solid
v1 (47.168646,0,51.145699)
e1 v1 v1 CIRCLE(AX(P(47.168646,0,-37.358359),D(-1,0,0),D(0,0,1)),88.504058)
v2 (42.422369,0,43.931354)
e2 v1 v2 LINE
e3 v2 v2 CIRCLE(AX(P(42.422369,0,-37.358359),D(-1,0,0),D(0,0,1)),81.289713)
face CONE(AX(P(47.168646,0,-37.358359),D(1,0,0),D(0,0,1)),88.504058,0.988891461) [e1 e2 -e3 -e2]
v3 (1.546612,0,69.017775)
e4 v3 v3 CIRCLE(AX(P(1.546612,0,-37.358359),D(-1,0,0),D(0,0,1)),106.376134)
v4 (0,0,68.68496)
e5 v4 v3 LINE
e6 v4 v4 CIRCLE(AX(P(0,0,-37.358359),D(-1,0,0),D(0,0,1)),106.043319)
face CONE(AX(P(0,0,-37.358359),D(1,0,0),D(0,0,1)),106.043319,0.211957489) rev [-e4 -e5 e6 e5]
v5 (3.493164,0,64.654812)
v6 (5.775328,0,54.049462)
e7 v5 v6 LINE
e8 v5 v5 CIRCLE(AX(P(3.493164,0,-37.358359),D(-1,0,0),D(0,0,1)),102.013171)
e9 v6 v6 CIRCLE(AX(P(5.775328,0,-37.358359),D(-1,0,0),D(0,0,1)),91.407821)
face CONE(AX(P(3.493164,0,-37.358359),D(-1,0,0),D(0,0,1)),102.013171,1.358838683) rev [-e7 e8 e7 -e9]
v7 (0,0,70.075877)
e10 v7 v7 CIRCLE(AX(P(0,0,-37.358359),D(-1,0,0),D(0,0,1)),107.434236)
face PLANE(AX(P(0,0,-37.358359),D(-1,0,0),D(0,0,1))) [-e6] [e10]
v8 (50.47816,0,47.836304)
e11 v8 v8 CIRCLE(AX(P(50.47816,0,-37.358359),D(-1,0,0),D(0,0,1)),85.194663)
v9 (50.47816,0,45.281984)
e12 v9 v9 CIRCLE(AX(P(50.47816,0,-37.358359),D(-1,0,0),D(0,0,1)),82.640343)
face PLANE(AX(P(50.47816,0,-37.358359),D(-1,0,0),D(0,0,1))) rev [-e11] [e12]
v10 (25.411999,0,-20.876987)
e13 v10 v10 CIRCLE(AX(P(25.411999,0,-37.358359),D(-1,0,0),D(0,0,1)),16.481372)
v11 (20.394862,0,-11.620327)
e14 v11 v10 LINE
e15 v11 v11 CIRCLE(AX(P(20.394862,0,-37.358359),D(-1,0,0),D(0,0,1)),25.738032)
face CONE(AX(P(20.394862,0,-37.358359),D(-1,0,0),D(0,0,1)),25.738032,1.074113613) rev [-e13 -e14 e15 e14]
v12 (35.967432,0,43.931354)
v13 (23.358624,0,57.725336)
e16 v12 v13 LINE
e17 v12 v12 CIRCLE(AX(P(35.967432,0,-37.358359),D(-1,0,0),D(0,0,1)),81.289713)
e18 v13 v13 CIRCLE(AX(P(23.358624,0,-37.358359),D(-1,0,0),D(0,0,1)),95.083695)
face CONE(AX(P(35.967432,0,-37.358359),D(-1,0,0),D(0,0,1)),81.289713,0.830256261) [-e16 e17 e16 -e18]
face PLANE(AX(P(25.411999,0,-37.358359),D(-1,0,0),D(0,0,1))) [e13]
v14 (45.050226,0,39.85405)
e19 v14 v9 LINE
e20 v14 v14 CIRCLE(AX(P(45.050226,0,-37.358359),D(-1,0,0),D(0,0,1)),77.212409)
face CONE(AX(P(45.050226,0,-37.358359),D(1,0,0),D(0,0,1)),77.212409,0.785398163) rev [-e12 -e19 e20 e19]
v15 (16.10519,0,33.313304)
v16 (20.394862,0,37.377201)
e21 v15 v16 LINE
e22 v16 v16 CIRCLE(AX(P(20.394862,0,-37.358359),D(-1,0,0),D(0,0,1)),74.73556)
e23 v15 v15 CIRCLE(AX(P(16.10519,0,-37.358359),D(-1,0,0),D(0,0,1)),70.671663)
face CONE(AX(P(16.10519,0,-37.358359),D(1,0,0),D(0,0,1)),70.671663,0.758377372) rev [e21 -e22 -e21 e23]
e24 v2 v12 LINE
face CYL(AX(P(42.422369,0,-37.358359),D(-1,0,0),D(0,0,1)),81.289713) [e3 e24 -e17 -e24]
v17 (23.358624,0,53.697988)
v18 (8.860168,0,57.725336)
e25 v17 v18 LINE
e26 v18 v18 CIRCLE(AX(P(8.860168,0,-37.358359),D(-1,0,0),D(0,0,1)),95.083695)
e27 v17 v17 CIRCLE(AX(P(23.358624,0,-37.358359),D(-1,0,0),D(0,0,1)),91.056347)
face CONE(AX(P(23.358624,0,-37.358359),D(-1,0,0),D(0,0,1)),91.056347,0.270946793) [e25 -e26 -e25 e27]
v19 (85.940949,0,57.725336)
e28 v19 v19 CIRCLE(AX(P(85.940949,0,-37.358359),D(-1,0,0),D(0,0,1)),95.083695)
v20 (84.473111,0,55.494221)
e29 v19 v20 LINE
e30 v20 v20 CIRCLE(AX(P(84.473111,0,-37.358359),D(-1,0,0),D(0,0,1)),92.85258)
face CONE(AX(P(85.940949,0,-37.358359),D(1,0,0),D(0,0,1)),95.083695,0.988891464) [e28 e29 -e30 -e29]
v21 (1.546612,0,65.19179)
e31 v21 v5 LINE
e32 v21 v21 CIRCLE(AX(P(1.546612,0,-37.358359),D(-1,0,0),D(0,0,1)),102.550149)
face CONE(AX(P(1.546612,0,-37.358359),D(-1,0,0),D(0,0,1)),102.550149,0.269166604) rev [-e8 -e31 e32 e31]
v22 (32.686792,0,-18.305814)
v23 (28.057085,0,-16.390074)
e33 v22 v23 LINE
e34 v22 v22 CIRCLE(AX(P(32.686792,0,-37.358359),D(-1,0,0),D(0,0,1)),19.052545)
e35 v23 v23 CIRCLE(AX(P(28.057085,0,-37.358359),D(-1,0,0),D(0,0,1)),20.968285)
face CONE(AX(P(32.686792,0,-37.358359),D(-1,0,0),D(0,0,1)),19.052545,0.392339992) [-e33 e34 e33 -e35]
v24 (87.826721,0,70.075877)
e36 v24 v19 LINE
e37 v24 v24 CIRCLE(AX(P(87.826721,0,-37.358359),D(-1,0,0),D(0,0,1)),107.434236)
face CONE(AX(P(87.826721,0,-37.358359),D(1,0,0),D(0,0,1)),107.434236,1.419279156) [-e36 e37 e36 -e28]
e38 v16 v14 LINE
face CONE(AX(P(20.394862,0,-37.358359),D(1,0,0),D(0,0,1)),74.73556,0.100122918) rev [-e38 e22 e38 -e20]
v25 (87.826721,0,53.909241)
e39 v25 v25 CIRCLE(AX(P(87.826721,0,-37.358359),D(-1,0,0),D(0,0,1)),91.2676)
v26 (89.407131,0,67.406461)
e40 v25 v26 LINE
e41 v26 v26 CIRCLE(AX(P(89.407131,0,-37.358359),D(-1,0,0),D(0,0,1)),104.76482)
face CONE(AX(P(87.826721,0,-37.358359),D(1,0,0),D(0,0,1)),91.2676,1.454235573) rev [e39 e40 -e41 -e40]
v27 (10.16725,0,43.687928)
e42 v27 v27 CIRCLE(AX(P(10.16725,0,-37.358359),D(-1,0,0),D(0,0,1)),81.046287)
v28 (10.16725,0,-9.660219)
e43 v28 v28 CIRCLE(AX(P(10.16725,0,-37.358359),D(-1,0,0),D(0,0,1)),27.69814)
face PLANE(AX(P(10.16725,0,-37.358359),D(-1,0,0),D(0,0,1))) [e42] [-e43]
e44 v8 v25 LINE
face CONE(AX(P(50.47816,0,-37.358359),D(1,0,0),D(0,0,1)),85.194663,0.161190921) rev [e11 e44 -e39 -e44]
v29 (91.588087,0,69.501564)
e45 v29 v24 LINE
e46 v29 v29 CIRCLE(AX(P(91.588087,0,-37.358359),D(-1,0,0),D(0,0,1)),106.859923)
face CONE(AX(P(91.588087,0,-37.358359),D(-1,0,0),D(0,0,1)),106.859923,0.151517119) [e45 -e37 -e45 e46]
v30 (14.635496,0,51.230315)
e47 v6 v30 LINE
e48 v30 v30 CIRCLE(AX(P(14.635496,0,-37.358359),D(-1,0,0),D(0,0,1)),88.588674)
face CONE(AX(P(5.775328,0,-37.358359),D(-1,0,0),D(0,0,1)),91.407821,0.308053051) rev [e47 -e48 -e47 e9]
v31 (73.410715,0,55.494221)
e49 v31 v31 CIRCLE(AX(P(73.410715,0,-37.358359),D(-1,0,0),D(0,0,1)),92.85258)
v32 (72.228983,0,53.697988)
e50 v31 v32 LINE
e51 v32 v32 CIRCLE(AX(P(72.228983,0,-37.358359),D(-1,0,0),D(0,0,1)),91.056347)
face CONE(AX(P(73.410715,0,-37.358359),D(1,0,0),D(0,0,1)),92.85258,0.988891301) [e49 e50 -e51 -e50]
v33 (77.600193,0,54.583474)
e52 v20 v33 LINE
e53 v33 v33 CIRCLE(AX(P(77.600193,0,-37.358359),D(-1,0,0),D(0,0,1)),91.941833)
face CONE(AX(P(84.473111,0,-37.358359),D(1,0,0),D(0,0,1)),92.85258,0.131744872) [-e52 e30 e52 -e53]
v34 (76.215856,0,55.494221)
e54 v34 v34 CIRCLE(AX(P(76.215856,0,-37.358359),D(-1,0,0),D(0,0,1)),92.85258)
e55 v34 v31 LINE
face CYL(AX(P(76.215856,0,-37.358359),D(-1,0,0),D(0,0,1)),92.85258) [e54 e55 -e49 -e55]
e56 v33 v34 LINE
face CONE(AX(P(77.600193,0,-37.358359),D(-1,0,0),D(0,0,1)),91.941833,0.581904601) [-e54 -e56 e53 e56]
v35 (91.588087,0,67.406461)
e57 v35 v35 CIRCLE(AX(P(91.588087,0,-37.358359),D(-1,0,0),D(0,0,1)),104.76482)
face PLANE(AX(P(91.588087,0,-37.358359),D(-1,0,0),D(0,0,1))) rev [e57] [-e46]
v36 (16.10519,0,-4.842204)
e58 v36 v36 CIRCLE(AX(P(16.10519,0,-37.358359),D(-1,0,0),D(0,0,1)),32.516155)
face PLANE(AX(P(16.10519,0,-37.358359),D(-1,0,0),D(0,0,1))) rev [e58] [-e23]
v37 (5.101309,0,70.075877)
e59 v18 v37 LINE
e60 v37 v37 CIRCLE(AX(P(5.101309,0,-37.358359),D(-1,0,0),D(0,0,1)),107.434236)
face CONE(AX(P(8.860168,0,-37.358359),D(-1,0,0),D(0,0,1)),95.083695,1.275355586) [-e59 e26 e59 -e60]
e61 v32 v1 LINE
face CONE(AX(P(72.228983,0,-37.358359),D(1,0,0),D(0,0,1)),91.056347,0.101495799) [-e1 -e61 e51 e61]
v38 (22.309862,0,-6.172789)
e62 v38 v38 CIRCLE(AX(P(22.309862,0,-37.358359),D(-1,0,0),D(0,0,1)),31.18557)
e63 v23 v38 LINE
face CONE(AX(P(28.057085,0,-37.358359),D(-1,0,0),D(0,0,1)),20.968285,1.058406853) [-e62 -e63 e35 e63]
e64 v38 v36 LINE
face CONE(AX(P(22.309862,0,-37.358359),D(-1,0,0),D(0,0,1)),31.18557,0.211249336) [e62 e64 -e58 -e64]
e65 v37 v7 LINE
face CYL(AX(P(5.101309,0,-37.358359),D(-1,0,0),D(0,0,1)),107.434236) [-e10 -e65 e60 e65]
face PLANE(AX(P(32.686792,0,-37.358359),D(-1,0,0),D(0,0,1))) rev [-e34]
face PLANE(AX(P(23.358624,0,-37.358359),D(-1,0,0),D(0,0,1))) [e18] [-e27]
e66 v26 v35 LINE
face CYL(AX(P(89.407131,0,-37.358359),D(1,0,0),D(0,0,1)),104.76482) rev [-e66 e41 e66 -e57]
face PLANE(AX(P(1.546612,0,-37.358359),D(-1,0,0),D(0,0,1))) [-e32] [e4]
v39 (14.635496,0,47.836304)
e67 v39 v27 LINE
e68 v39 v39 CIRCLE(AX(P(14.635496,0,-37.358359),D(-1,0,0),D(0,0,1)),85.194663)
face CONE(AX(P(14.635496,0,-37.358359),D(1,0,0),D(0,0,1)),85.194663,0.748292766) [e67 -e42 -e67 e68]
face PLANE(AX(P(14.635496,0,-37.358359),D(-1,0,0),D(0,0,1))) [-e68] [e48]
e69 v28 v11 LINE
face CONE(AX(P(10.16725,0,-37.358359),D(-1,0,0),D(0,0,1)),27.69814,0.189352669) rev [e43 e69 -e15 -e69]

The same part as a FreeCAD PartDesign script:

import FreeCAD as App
import Part
import Sketcher

V = App.Vector
Q = App.Units.Quantity

doc = App.newDocument("Part")
body = doc.addObject("PartDesign::Body", "Body")

sketch1 = body.newObject("Sketcher::SketchObject", "Sketch")
sketch1.AttachmentSupport = (doc.getObject("XZ_Plane"), [""])
sketch1.MapMode = "FlatFace"
sketch1.addGeometry([
    Part.LineSegment(V(5.101309, 70.075877, 0), V(0, 70.075877, 0)),
    Part.LineSegment(V(0, 70.075877, 0), V(0, 68.68496, 0)),
    Part.LineSegment(V(0, 68.68496, 0), V(1.546612, 69.017775, 0)),
    Part.LineSegment(V(1.546612, 69.017775, 0), V(1.546612, 65.19179, 0)),
    Part.LineSegment(V(1.546612, 65.19179, 0), V(3.493164, 64.654812, 0)),
    Part.LineSegment(V(3.493164, 64.654812, 0), V(5.775328, 54.049462, 0)),
    Part.LineSegment(V(5.775328, 54.049462, 0), V(14.635496, 51.230315, 0)),
    Part.LineSegment(V(14.635496, 51.230315, 0), V(14.635496, 47.836304, 0)),
    Part.LineSegment(V(14.635496, 47.836304, 0), V(10.16725, 43.687928, 0)),
    Part.LineSegment(V(10.16725, 43.687928, 0), V(10.16725, -9.660219, 0)),
    Part.LineSegment(V(10.16725, -9.660219, 0), V(20.394862, -11.620327, 0)),
    Part.LineSegment(V(20.394862, -11.620327, 0), V(25.411999, -20.876987, 0)),
    Part.LineSegment(V(25.411999, -20.876987, 0), V(25.411999, -37.358359, 0)),
    Part.LineSegment(V(25.411999, -37.358359, 0), V(32.686792, -37.358359, 0)),
    Part.LineSegment(V(32.686792, -37.358359, 0), V(32.686792, -18.305814, 0)),
    Part.LineSegment(V(32.686792, -18.305814, 0), V(28.057085, -16.390074, 0)),
    Part.LineSegment(V(28.057085, -16.390074, 0), V(22.309862, -6.172789, 0)),
    Part.LineSegment(V(22.309862, -6.172789, 0), V(16.10519, -4.842204, 0)),
    Part.LineSegment(V(16.10519, -4.842204, 0), V(16.10519, 33.313304, 0)),
    Part.LineSegment(V(16.10519, 33.313304, 0), V(20.394862, 37.377201, 0)),
    Part.LineSegment(V(20.394862, 37.377201, 0), V(45.050226, 39.85405, 0)),
    Part.LineSegment(V(45.050226, 39.85405, 0), V(50.47816, 45.281984, 0)),
    Part.LineSegment(V(50.47816, 45.281984, 0), V(50.47816, 47.836304, 0)),
    Part.LineSegment(V(50.47816, 47.836304, 0), V(87.826721, 53.909241, 0)),
    Part.LineSegment(V(87.826721, 53.909241, 0), V(89.407131, 67.406461, 0)),
    Part.LineSegment(V(89.407131, 67.406461, 0), V(91.588087, 67.406461, 0)),
    Part.LineSegment(V(91.588087, 67.406461, 0), V(91.588087, 69.501564, 0)),
    Part.LineSegment(V(91.588087, 69.501564, 0), V(87.826721, 70.075877, 0)),
    Part.LineSegment(V(87.826721, 70.075877, 0), V(85.940949, 57.725336, 0)),
    Part.LineSegment(V(85.940949, 57.725336, 0), V(84.473111, 55.494221, 0)),
    Part.LineSegment(V(84.473111, 55.494221, 0), V(77.600193, 54.583474, 0)),
    Part.LineSegment(V(77.600193, 54.583474, 0), V(76.215856, 55.494221, 0)),
    Part.LineSegment(V(76.215856, 55.494221, 0), V(73.410715, 55.494221, 0)),
    Part.LineSegment(V(73.410715, 55.494221, 0), V(72.228983, 53.697988, 0)),
    Part.LineSegment(V(72.228983, 53.697988, 0), V(47.168646, 51.145699, 0)),
    Part.LineSegment(V(47.168646, 51.145699, 0), V(42.422369, 43.931354, 0)),
    Part.LineSegment(V(42.422369, 43.931354, 0), V(35.967432, 43.931354, 0)),
    Part.LineSegment(V(35.967432, 43.931354, 0), V(23.358624, 57.725336, 0)),
    Part.LineSegment(V(23.358624, 57.725336, 0), V(23.358624, 53.697988, 0)),
    Part.LineSegment(V(23.358624, 53.697988, 0), V(8.860168, 57.725336, 0)),
    Part.LineSegment(V(8.860168, 57.725336, 0), V(5.101309, 70.075877, 0)),
], False)
sketch1.addGeometry(Part.LineSegment(V(91.588087, -37.358359, 0), V(0, -37.358359, 0)), True)
sketch1.addConstraint([
    Sketcher.Constraint("Coincident", 0, 2, 1, 1),
    Sketcher.Constraint("Coincident", 1, 2, 2, 1),
    Sketcher.Constraint("Coincident", 2, 2, 3, 1),
    Sketcher.Constraint("Coincident", 3, 2, 4, 1),
    Sketcher.Constraint("Coincident", 4, 2, 5, 1),
    Sketcher.Constraint("Coincident", 5, 2, 6, 1),
    Sketcher.Constraint("Coincident", 6, 2, 7, 1),
    Sketcher.Constraint("Coincident", 7, 2, 8, 1),
    Sketcher.Constraint("Coincident", 8, 2, 9, 1),
    Sketcher.Constraint("Coincident", 9, 2, 10, 1),
    Sketcher.Constraint("Coincident", 10, 2, 11, 1),
    Sketcher.Constraint("Coincident", 11, 2, 12, 1),
    Sketcher.Constraint("Coincident", 12, 2, 13, 1),
    Sketcher.Constraint("Coincident", 13, 2, 14, 1),
    Sketcher.Constraint("Coincident", 14, 2, 15, 1),
    Sketcher.Constraint("Coincident", 15, 2, 16, 1),
    Sketcher.Constraint("Coincident", 16, 2, 17, 1),
    Sketcher.Constraint("Coincident", 17, 2, 18, 1),
    Sketcher.Constraint("Coincident", 18, 2, 19, 1),
    Sketcher.Constraint("Coincident", 19, 2, 20, 1),
    Sketcher.Constraint("Coincident", 20, 2, 21, 1),
    Sketcher.Constraint("Coincident", 21, 2, 22, 1),
    Sketcher.Constraint("Coincident", 22, 2, 23, 1),
    Sketcher.Constraint("Coincident", 23, 2, 24, 1),
    Sketcher.Constraint("Coincident", 24, 2, 25, 1),
    Sketcher.Constraint("Coincident", 25, 2, 26, 1),
    Sketcher.Constraint("Coincident", 26, 2, 27, 1),
    Sketcher.Constraint("Coincident", 27, 2, 28, 1),
    Sketcher.Constraint("Coincident", 28, 2, 29, 1),
    Sketcher.Constraint("Coincident", 29, 2, 30, 1),
    Sketcher.Constraint("Coincident", 30, 2, 31, 1),
    Sketcher.Constraint("Coincident", 31, 2, 32, 1),
    Sketcher.Constraint("Coincident", 32, 2, 33, 1),
    Sketcher.Constraint("Coincident", 33, 2, 34, 1),
    Sketcher.Constraint("Coincident", 34, 2, 35, 1),
    Sketcher.Constraint("Coincident", 35, 2, 36, 1),
    Sketcher.Constraint("Coincident", 36, 2, 37, 1),
    Sketcher.Constraint("Coincident", 37, 2, 38, 1),
    Sketcher.Constraint("Coincident", 38, 2, 39, 1),
    Sketcher.Constraint("Coincident", 39, 2, 40, 1),
    Sketcher.Constraint("Coincident", 40, 2, 0, 1),
    Sketcher.Constraint("Horizontal", 0),
    Sketcher.Constraint("Vertical", 1),
    Sketcher.Constraint("Vertical", 3),
    Sketcher.Constraint("Vertical", 7),
    Sketcher.Constraint("Vertical", 9),
    Sketcher.Constraint("Vertical", 12),
    Sketcher.Constraint("Horizontal", 13),
    Sketcher.Constraint("Vertical", 14),
    Sketcher.Constraint("Vertical", 18),
    Sketcher.Constraint("Vertical", 22),
    Sketcher.Constraint("Horizontal", 25),
    Sketcher.Constraint("Vertical", 26),
    Sketcher.Constraint("Horizontal", 32),
    Sketcher.Constraint("Horizontal", 36),
    Sketcher.Constraint("Vertical", 38),
    Sketcher.Constraint("Horizontal", 41),
    Sketcher.Constraint("PointOnObject", 0, 2, -2),
    Sketcher.Constraint("PointOnObject", 41, 2, -2),
    Sketcher.Constraint("Distance", 30, Q("6.932998 mm")),
    Sketcher.Constraint("DistanceX", -1, 1, 11, 2, Q("25.411999 mm")),
    Sketcher.Constraint("DistanceX", 10, 2, 16, 2, Q("1.915 mm")),
    Sketcher.Constraint("DistanceY", 18, 2, 7, 2, Q("14.523 mm")),
    Sketcher.Constraint("DistanceX", 0, 2, 0, 1, Q("5.101309 mm")),
    Sketcher.Constraint("DistanceX", 32, 2, 32, 1, Q("2.805141 mm")),
    Sketcher.Constraint("DistanceY", 7, 2, 7, 1, Q("3.394011 mm")),
    Sketcher.Constraint("DistanceY", 18, 1, 18, 2, Q("38.155508 mm")),
    Sketcher.Constraint("DistanceY", 22, 1, 22, 2, Q("2.55432 mm")),
    Sketcher.Constraint("DistanceY", -1, 1, 19, 2, Q("37.377201 mm")),
    Sketcher.Constraint("DistanceY", -1, 1, 34, 2, Q("51.145699 mm")),
    Sketcher.Constraint("DistanceY", 5, 2, 1, 2, Q("14.635498 mm")),
    Sketcher.Constraint("DistanceX", 19, 2, 21, 2, Q("30.083298 mm")),
    Sketcher.Constraint("Distance", 4, Q("2.01926 mm")),
    Sketcher.Constraint("Distance", 5, Q("10.848121 mm")),
    Sketcher.Constraint("Distance", 6, Q("9.297858 mm")),
    Sketcher.Constraint("Distance", 8, Q("6.097069 mm")),
    Sketcher.Constraint("Distance", 17, Q("6.34574 mm")),
    Sketcher.Constraint("Distance", 24, Q("13.589431 mm")),
    Sketcher.Constraint("Distance", 27, Q("3.804959 mm")),
    Sketcher.Constraint("Distance", 28, Q("12.493678 mm")),
    Sketcher.Constraint("Distance", 29, Q("2.67066 mm")),
    Sketcher.Constraint("Distance", 31, Q("1.65706 mm")),
    Sketcher.Constraint("Distance", 34, Q("25.189972 mm")),
    Sketcher.Constraint("Distance", 35, Q("8.635619 mm")),
    Sketcher.Constraint("Distance", 37, Q("18.688392 mm")),
    Sketcher.Constraint("DistanceX", 13, 1, 13, 2, Q("7.274793 mm")),
    Sketcher.Constraint("DistanceX", 25, 1, 25, 2, Q("2.180956 mm")),
    Sketcher.Constraint("DistanceX", 36, 2, 36, 1, Q("6.454937 mm")),
    Sketcher.Constraint("DistanceX", 41, 2, 41, 1, Q("91.588087 mm")),
    Sketcher.Constraint("DistanceY", 1, 2, 1, 1, Q("1.390917 mm")),
    Sketcher.Constraint("DistanceY", 3, 2, 3, 1, Q("3.825985 mm")),
    Sketcher.Constraint("DistanceY", 9, 2, 9, 1, Q("53.348147 mm")),
    Sketcher.Constraint("DistanceY", 12, 2, 12, 1, Q("16.481372 mm")),
    Sketcher.Constraint("DistanceY", 14, 1, 14, 2, Q("19.052545 mm")),
    Sketcher.Constraint("DistanceY", 26, 1, 26, 2, Q("2.095103 mm")),
    Sketcher.Constraint("DistanceY", 38, 2, 38, 1, Q("4.027348 mm")),
    Sketcher.Constraint("DistanceY", -1, 1, 1, 2, Q("68.68496 mm")),
    Sketcher.Constraint("DistanceY", -1, 1, 3, 2, Q("65.19179 mm")),
    Sketcher.Constraint("DistanceX", -1, 1, 8, 2, Q("10.16725 mm")),
    Sketcher.Constraint("DistanceY", 9, 2, -1, 1, Q("9.660219 mm")),
    Sketcher.Constraint("DistanceX", -1, 1, 10, 2, Q("20.394862 mm")),
    Sketcher.Constraint("DistanceY", 12, 2, -1, 1, Q("37.358359 mm")),
    Sketcher.Constraint("DistanceY", 16, 2, -1, 1, Q("6.172789 mm")),
    Sketcher.Constraint("DistanceX", -1, 1, 17, 2, Q("16.10519 mm")),
    Sketcher.Constraint("DistanceX", -1, 1, 19, 2, Q("20.394862 mm")),
    Sketcher.Constraint("DistanceY", -1, 1, 20, 2, Q("39.85405 mm")),
    Sketcher.Constraint("DistanceX", -1, 1, 23, 2, Q("87.826721 mm")),
    Sketcher.Constraint("DistanceY", -1, 1, 23, 2, Q("53.909241 mm")),
    Sketcher.Constraint("DistanceX", -1, 1, 24, 2, Q("89.407131 mm")),
    Sketcher.Constraint("DistanceX", -1, 1, 27, 2, Q("87.826721 mm")),
    Sketcher.Constraint("DistanceX", -1, 1, 28, 2, Q("85.940949 mm")),
    Sketcher.Constraint("DistanceX", -1, 1, 29, 2, Q("84.473111 mm")),
    Sketcher.Constraint("DistanceY", -1, 1, 31, 2, Q("55.494221 mm")),
    Sketcher.Constraint("DistanceY", -1, 1, 33, 2, Q("53.697988 mm")),
    Sketcher.Constraint("DistanceX", -1, 1, 35, 2, Q("42.422369 mm")),
    Sketcher.Constraint("DistanceY", -1, 1, 38, 2, Q("53.697988 mm")),
    Sketcher.Constraint("DistanceY", 41, 1, -1, 1, Q("37.358359 mm")),
    Sketcher.Constraint("DistanceY", 5, 2, 4, 2, Q("10.60535 mm")),
    Sketcher.Constraint("DistanceY", 10, 2, 7, 2, Q("59.456631 mm")),
    Sketcher.Constraint("DistanceY", 14, 2, 15, 2, Q("1.91574 mm")),
    Sketcher.Constraint("DistanceX", 7, 2, 20, 2, Q("30.41473 mm")),
    Sketcher.Constraint("DistanceY", 21, 2, 7, 2, Q("2.55432 mm")),
    Sketcher.Constraint("DistanceY", 30, 2, 28, 2, Q("3.141862 mm")),
    Sketcher.Constraint("DistanceX", 33, 2, 32, 2, Q("1.181732 mm")),
    Sketcher.Constraint("DistanceX", 5, 2, 39, 2, Q("3.08484 mm")),
    Sketcher.Constraint("DistanceY", 6, 2, 39, 2, Q("6.495021 mm")),
    Sketcher.Constraint("Distance", 15, Q("5.010414 mm")),
])
revolution = body.newObject("PartDesign::Revolution", "Revolution")
revolution.Profile = sketch1
revolution.ReferenceAxis = (sketch1, ["Axis0"])
revolution.Angle = 360

doc.recompute()
